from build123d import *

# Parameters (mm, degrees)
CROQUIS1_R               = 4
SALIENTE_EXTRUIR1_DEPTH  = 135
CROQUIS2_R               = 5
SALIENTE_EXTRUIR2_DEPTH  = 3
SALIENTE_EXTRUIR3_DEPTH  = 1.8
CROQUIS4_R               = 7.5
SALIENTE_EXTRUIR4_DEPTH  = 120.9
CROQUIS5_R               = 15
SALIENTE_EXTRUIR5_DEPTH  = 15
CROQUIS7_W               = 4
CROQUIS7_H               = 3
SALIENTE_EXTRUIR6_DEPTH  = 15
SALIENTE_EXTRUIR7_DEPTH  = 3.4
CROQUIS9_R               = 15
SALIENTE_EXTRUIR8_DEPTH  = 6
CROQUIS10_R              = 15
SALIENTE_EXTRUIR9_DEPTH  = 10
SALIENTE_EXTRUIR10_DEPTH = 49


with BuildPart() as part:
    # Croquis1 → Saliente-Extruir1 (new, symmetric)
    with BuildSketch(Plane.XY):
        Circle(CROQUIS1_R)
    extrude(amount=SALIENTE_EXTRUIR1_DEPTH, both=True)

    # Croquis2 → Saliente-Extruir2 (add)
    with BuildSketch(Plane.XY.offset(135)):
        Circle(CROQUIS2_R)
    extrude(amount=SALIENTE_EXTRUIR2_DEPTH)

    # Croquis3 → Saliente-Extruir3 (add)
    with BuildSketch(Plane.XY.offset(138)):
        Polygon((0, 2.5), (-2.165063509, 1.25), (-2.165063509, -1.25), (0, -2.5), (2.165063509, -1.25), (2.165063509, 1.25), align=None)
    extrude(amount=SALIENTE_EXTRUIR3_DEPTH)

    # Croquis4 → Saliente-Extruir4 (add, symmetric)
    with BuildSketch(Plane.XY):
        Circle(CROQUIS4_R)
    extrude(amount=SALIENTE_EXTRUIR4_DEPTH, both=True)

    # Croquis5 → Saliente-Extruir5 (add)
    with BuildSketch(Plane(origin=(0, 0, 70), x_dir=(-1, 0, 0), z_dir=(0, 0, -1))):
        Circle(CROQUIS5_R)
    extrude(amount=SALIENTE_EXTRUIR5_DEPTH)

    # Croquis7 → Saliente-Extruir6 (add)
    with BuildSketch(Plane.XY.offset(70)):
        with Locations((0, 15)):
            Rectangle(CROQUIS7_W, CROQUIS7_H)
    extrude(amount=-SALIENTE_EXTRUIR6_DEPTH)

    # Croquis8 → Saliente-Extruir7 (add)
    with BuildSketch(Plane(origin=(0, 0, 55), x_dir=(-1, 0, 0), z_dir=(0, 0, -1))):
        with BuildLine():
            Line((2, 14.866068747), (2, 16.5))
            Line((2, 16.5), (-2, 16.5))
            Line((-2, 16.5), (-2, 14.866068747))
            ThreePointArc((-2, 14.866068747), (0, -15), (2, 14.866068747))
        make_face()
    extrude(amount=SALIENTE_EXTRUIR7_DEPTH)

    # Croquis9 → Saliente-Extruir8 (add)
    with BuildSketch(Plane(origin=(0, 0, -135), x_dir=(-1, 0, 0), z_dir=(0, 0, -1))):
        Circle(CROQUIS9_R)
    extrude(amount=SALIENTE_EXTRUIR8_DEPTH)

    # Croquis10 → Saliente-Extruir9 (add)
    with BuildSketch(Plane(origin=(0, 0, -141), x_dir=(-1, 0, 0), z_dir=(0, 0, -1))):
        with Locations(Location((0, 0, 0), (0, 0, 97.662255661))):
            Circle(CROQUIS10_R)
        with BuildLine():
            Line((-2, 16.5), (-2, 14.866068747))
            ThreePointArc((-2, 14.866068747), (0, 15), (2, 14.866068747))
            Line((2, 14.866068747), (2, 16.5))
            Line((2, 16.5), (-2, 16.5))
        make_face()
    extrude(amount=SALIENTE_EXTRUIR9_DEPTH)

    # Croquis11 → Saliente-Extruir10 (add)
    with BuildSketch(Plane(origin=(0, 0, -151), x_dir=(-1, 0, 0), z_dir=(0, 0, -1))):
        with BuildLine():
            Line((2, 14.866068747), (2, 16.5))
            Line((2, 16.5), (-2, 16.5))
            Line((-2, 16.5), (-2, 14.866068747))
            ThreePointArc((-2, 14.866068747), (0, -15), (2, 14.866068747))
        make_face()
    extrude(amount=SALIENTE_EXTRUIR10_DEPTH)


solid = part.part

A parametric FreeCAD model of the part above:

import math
import FreeCAD as App
import Part
import Sketcher
Q = App.Units.Quantity


def add_polygon(sketch, points):
    """Adds a closed chain of lines whose ends are joined by coincident constraints."""
    first, n = sketch.GeometryCount, len(points)
    for a, b in zip(points, points[1:] + points[:1]):
        sketch.addGeometry(Part.LineSegment(App.Vector(*a, 0), App.Vector(*b, 0)), False)
    for i in range(n):
        sketch.addConstraint(Sketcher.Constraint("Coincident", first + i, 2, first + (i + 1) % n, 1))

doc = App.newDocument("Part")
body = doc.addObject("PartDesign::Body", "Body")

# Sketch on XY plane
sketch1 = body.newObject("Sketcher::SketchObject", "Sketch")
sketch1.AttachmentSupport = (doc.getObject("XY_Plane"), [""])
sketch1.MapMode = "FlatFace"
sketch1.addGeometry(Part.Circle(App.Vector(0, 0, 0), App.Vector(0, 0, 1), 4), False)
sketch1.addConstraint(Sketcher.Constraint("Coincident", 0, 3, -1, 1))
sketch1.addConstraint(Sketcher.Constraint("Diameter", 0, Q("8 mm")))
pad1 = body.newObject("PartDesign::Pad", "Pad")
pad1.Profile = sketch1
pad1.Length = 270
pad1.Midplane = True

# Sketch on XY plane
sketch2 = body.newObject("Sketcher::SketchObject", "Sketch001")
sketch2.AttachmentSupport = (doc.getObject("XY_Plane"), [""])
sketch2.MapMode = "FlatFace"
sketch2.AttachmentOffset = App.Placement(App.Vector(0, 0, 135), App.Rotation())
sketch2.addGeometry(Part.Circle(App.Vector(0, 0, 0), App.Vector(0, 0, 1), 5), False)
sketch2.addConstraint(Sketcher.Constraint("Coincident", 0, 3, -1, 1))
sketch2.addConstraint(Sketcher.Constraint("Diameter", 0, Q("10 mm")))
pad2 = body.newObject("PartDesign::Pad", "Pad001")
pad2.Profile = sketch2
pad2.Length = 3

# Sketch on XY plane
sketch3 = body.newObject("Sketcher::SketchObject", "Sketch002")
sketch3.AttachmentSupport = (doc.getObject("XY_Plane"), [""])
sketch3.MapMode = "FlatFace"
sketch3.AttachmentOffset = App.Placement(App.Vector(0, 0, 138), App.Rotation())
add_polygon(sketch3, [(0, 2.5), (-2.2, 1.2), (-2.2, -1.2), (0, -2.5), (2.2, -1.2), (2.2, 1.2)])  # lines 0-5
sketch3.addConstraint(Sketcher.Constraint("Vertical", 1))
sketch3.addConstraint(Sketcher.Constraint("Vertical", 4))
sketch3.addConstraint(Sketcher.Constraint("Symmetric", 0, 2, 3, 2, -1, 1))
sketch3.addConstraint(Sketcher.Constraint("Symmetric", 2, 2, 5, 2, -1, 1))
sketch3.addConstraint(Sketcher.Constraint("PointOnObject", 2, 2, -2))
sketch3.addConstraint(Sketcher.Constraint("Parallel", 2, 5))
sketch3.addConstraint(Sketcher.Constraint("Horizontal", 1, 2, 3, 2))
sketch3.addConstraint(Sketcher.Constraint("Angle", 0, Q("-150 deg")))
sketch3.addConstraint(Sketcher.Constraint("DistanceY", 1, 2, 1, 1, Q("2.5 mm")))
sketch3.addConstraint(Sketcher.Constraint("DistanceY", 2, 2, 5, 2, Q("5 mm")))
pad3 = body.newObject("PartDesign::Pad", "Pad002")
pad3.Profile = sketch3
pad3.Length = 1.8

# Sketch on XY plane
sketch4 = body.newObject("Sketcher::SketchObject", "Sketch003")
sketch4.AttachmentSupport = (doc.getObject("XY_Plane"), [""])
sketch4.MapMode = "FlatFace"
sketch4.addGeometry(Part.Circle(App.Vector(0, 0, 0), App.Vector(0, 0, 1), 8), False)
sketch4.addConstraint(Sketcher.Constraint("Coincident", 0, 3, -1, 1))
sketch4.addConstraint(Sketcher.Constraint("Diameter", 0, Q("15 mm")))
pad4 = body.newObject("PartDesign::Pad", "Pad003")
pad4.Profile = sketch4
pad4.Length = 241.8
pad4.Midplane = True

# Sketch on XY plane
sketch5 = body.newObject("Sketcher::SketchObject", "Sketch004")
sketch5.AttachmentSupport = (doc.getObject("XY_Plane"), [""])
sketch5.MapMode = "FlatFace"
sketch5.AttachmentOffset = App.Placement(App.Vector(0, 0, 70), App.Rotation())
sketch5.addGeometry(Part.Circle(App.Vector(0, 0, 0), App.Vector(0, 0, 1), 15), False)
sketch5.addConstraint(Sketcher.Constraint("Coincident", 0, 3, -1, 1))
sketch5.addConstraint(Sketcher.Constraint("Diameter", 0, Q("30 mm")))
pad5 = body.newObject("PartDesign::Pad", "Pad004")
pad5.Profile = sketch5
pad5.Length = 15
pad5.Reversed = True

# Sketch on XY plane
sketch6 = body.newObject("Sketcher::SketchObject", "Sketch005")
sketch6.AttachmentSupport = (doc.getObject("XY_Plane"), [""])
sketch6.MapMode = "FlatFace"
sketch6.AttachmentOffset = App.Placement(App.Vector(0, 0, 70), App.Rotation())
add_polygon(sketch6, [(-2, 16.5), (-2, 13.5), (2, 13.5), (2, 16.5)])  # lines 0-3
sketch6.addConstraint(Sketcher.Constraint("Vertical", 0))
sketch6.addConstraint(Sketcher.Constraint("Horizontal", 1))
sketch6.addConstraint(Sketcher.Constraint("Vertical", 2))
sketch6.addConstraint(Sketcher.Constraint("Horizontal", 3))
sketch6.addConstraint(Sketcher.Constraint("DistanceX", 1, 1, 1, 2, Q("4 mm")))
sketch6.addConstraint(Sketcher.Constraint("DistanceY", 0, 2, 0, 1, Q("3 mm")))
sketch6.addConstraint(Sketcher.Constraint("DistanceX", 0, 2, -1, 1, Q("2 mm")))
sketch6.addConstraint(Sketcher.Constraint("DistanceY", -1, 1, 0, 2, Q("13.5 mm")))
pad6 = body.newObject("PartDesign::Pad", "Pad005")
pad6.Profile = sketch6
pad6.Length = 15
pad6.Reversed = True

# Sketch on XY plane
sketch7 = body.newObject("Sketcher::SketchObject", "Sketch006")
sketch7.AttachmentSupport = (doc.getObject("XY_Plane"), [""])
sketch7.MapMode = "FlatFace"
sketch7.AttachmentOffset = App.Placement(App.Vector(0, 0, 55), App.Rotation())
sketch7.addGeometry(Part.LineSegment(App.Vector(-2, 14.9, 0), App.Vector(-2, 16.5, 0)), False)
sketch7.addGeometry(Part.LineSegment(App.Vector(-2, 16.5, 0), App.Vector(2, 16.5, 0)), False)
sketch7.addGeometry(Part.LineSegment(App.Vector(2, 16.5, 0), App.Vector(2, 14.9, 0)), False)
sketch7.addGeometry(Part.ArcOfCircle(Part.Circle(App.Vector(0, 0, 0), App.Vector(0, 0, 1), 15), math.radians(98), math.radians(442)), False)
sketch7.addConstraint(Sketcher.Constraint("Coincident", 0, 2, 1, 1))
sketch7.addConstraint(Sketcher.Constraint("Coincident", 1, 2, 2, 1))
sketch7.addConstraint(Sketcher.Constraint("Coincident", 2, 2, 3, 2))
sketch7.addConstraint(Sketcher.Constraint("Coincident", 3, 1, 0, 1))
sketch7.addConstraint(Sketcher.Constraint("Vertical", 0))
sketch7.addConstraint(Sketcher.Constraint("Horizontal", 1))
sketch7.addConstraint(Sketcher.Constraint("Vertical", 2))
sketch7.addConstraint(Sketcher.Constraint("Coincident", 3, 3, -1, 1))
sketch7.addConstraint(Sketcher.Constraint("Horizontal", 2, 2, 3, 1))
sketch7.addConstraint(Sketcher.Constraint("Radius", 3, Q("15 mm")))
sketch7.addConstraint(Sketcher.Constraint("DistanceX", 1, 1, 1, 2, Q("4 mm")))
sketch7.addConstraint(Sketcher.Constraint("DistanceY", -1, 1, 0, 2, Q("16.5 mm")))
pad7 = body.newObject("PartDesign::Pad", "Pad006")
pad7.Profile = sketch7
pad7.Length = 3.4
pad7.Reversed = True

# Sketch on XY plane
sketch8 = body.newObject("Sketcher::SketchObject", "Sketch007")
sketch8.AttachmentSupport = (doc.getObject("XY_Plane"), [""])
sketch8.MapMode = "FlatFace"
sketch8.AttachmentOffset = App.Placement(App.Vector(0, 0, -135), App.Rotation())
sketch8.addGeometry(Part.Circle(App.Vector(0, 0, 0), App.Vector(0, 0, 1), 15), False)
sketch8.addConstraint(Sketcher.Constraint("Coincident", 0, 3, -1, 1))
sketch8.addConstraint(Sketcher.Constraint("Diameter", 0, Q("30 mm")))
pad8 = body.newObject("PartDesign::Pad", "Pad007")
pad8.Profile = sketch8
pad8.Length = 6
pad8.Reversed = True

# Sketch on XY plane
sketch9 = body.newObject("Sketcher::SketchObject", "Sketch008")
sketch9.AttachmentSupport = (doc.getObject("XY_Plane"), [""])
sketch9.MapMode = "FlatFace"
sketch9.AttachmentOffset = App.Placement(App.Vector(0, 0, -141), App.Rotation())
sketch9.addGeometry(Part.ArcOfCircle(Part.Circle(App.Vector(0, 0, 0), App.Vector(0, 0, 1), 15), math.radians(98), math.radians(442)), False)
sketch9.addGeometry(Part.LineSegment(App.Vector(-2, 14.9, 0), App.Vector(-2, 16.5, 0)), False)
sketch9.addGeometry(Part.LineSegment(App.Vector(-2, 16.5, 0), App.Vector(2, 16.5, 0)), False)
sketch9.addGeometry(Part.LineSegment(App.Vector(2, 16.5, 0), App.Vector(2, 14.9, 0)), False)
sketch9.addConstraint(Sketcher.Constraint("Coincident", 0, 1, 1, 1))
sketch9.addConstraint(Sketcher.Constraint("Coincident", 1, 2, 2, 1))
sketch9.addConstraint(Sketcher.Constraint("Coincident", 2, 2, 3, 1))
sketch9.addConstraint(Sketcher.Constraint("Coincident", 3, 2, 0, 2))
sketch9.addConstraint(Sketcher.Constraint("Vertical", 1))
sketch9.addConstraint(Sketcher.Constraint("Horizontal", 2))
sketch9.addConstraint(Sketcher.Constraint("Vertical", 3))
sketch9.addConstraint(Sketcher.Constraint("Coincident", 0, 3, -1, 1))
sketch9.addConstraint(Sketcher.Constraint("Horizontal", 0, 1, 3, 2))
sketch9.addConstraint(Sketcher.Constraint("Radius", 0, Q("15 mm")))
sketch9.addConstraint(Sketcher.Constraint("DistanceX", 2, 1, 2, 2, Q("4 mm")))
sketch9.addConstraint(Sketcher.Constraint("DistanceY", -1, 1, 1, 2, Q("16.5 mm")))
pad9 = body.newObject("PartDesign::Pad", "Pad008")
pad9.Profile = sketch9
pad9.Length = 10
pad9.Reversed = True

# Sketch on XY plane
sketch10 = body.newObject("Sketcher::SketchObject", "Sketch009")
sketch10.AttachmentSupport = (doc.getObject("XY_Plane"), [""])
sketch10.MapMode = "FlatFace"
sketch10.AttachmentOffset = App.Placement(App.Vector(0, 0, -151), App.Rotation())
sketch10.addGeometry(Part.LineSegment(App.Vector(-2, 14.9, 0), App.Vector(-2, 16.5, 0)), False)
sketch10.addGeometry(Part.LineSegment(App.Vector(-2, 16.5, 0), App.Vector(2, 16.5, 0)), False)
sketch10.addGeometry(Part.LineSegment(App.Vector(2, 16.5, 0), App.Vector(2, 14.9, 0)), False)
sketch10.addGeometry(Part.ArcOfCircle(Part.Circle(App.Vector(0, 0, 0), App.Vector(0, 0, 1), 15), math.radians(98), math.radians(442)), False)
sketch10.addConstraint(Sketcher.Constraint("Coincident", 0, 2, 1, 1))
sketch10.addConstraint(Sketcher.Constraint("Coincident", 1, 2, 2, 1))
sketch10.addConstraint(Sketcher.Constraint("Coincident", 2, 2, 3, 2))
sketch10.addConstraint(Sketcher.Constraint("Coincident", 3, 1, 0, 1))
sketch10.addConstraint(Sketcher.Constraint("Vertical", 0))
sketch10.addConstraint(Sketcher.Constraint("Horizontal", 1))
sketch10.addConstraint(Sketcher.Constraint("Vertical", 2))
sketch10.addConstraint(Sketcher.Constraint("Coincident", 3, 3, -1, 1))
sketch10.addConstraint(Sketcher.Constraint("Horizontal", 2, 2, 3, 1))
sketch10.addConstraint(Sketcher.Constraint("Radius", 3, Q("15 mm")))
sketch10.addConstraint(Sketcher.Constraint("DistanceX", 1, 1, 1, 2, Q("4 mm")))
sketch10.addConstraint(Sketcher.Constraint("DistanceY", -1, 1, 0, 2, Q("16.5 mm")))
pad10 = body.newObject("PartDesign::Pad", "Pad009")
pad10.Profile = sketch10
pad10.Length = 49
pad10.Reversed = True

doc.recompute()
